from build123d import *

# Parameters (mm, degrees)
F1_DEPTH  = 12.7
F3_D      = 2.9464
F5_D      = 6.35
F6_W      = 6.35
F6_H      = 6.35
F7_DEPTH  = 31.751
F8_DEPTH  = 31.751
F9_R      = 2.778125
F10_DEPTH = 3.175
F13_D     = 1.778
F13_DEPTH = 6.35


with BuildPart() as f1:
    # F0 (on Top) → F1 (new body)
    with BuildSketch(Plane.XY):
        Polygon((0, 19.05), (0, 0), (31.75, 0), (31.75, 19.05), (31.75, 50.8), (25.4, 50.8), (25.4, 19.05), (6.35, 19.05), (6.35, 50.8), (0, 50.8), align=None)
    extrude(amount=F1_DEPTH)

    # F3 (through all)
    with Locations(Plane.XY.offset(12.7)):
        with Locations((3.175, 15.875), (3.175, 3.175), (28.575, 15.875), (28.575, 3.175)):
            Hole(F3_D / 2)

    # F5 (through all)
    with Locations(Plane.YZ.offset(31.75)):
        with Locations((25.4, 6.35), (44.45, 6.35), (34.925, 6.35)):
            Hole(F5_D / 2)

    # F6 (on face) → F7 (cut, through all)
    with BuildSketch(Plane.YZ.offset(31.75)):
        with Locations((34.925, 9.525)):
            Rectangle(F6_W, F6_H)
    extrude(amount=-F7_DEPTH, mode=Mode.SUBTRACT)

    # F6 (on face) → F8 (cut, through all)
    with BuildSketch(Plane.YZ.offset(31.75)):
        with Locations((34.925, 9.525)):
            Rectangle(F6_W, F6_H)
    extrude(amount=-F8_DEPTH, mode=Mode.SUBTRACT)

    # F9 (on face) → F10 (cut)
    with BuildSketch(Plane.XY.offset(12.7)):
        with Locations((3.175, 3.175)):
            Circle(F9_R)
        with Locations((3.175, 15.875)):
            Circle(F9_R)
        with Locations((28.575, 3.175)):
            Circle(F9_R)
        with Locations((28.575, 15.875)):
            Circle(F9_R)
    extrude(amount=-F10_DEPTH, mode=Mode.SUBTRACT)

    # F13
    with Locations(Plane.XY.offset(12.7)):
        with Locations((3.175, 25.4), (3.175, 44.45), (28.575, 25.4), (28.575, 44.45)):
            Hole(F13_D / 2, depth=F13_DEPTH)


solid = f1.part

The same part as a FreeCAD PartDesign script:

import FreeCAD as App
import Part
import Sketcher
Q = App.Units.Quantity


def add_polygon(sketch, points):
    """Adds a closed chain of lines whose ends are joined by coincident constraints."""
    first, n = sketch.GeometryCount, len(points)
    for a, b in zip(points, points[1:] + points[:1]):
        sketch.addGeometry(Part.LineSegment(App.Vector(*a, 0), App.Vector(*b, 0)), False)
    for i in range(n):
        sketch.addConstraint(Sketcher.Constraint("Coincident", first + i, 2, first + (i + 1) % n, 1))

doc = App.newDocument("Part")
body = doc.addObject("PartDesign::Body", "Body")

sketch1 = body.newObject("Sketcher::SketchObject", "Sketch")
sketch1.AttachmentSupport = (doc.getObject("XY_Plane"), [""])
sketch1.MapMode = "FlatFace"
add_polygon(sketch1, [(0, 0), (31.75, 0), (31.75, 50.8), (25.4, 50.8), (25.4, 19.05), (6.35, 19.05), (6.35, 50.8), (0, 50.8)])
sketch1.addConstraint(Sketcher.Constraint("Horizontal", 0))
sketch1.addConstraint(Sketcher.Constraint("Vertical", 1))
sketch1.addConstraint(Sketcher.Constraint("Horizontal", 2))
sketch1.addConstraint(Sketcher.Constraint("Vertical", 3))
sketch1.addConstraint(Sketcher.Constraint("Horizontal", 4))
sketch1.addConstraint(Sketcher.Constraint("Vertical", 5))
sketch1.addConstraint(Sketcher.Constraint("Horizontal", 6))
sketch1.addConstraint(Sketcher.Constraint("Vertical", 7))
sketch1.addConstraint(Sketcher.Constraint("Coincident", 7, 2, -1, 1))
sketch1.addConstraint(Sketcher.Constraint("Horizontal", 2, 2, 5, 2))
sketch1.addConstraint(Sketcher.Constraint("Equal", 2, 6))
sketch1.addConstraint(Sketcher.Constraint("Equal", 0, 3))
sketch1.addConstraint(Sketcher.Constraint("DistanceY", 1, 1, 1, 2, Q("2 in")))
sketch1.addConstraint(Sketcher.Constraint("DistanceX", -1, 1, 2, 2, Q("1 in")))
sketch1.addConstraint(Sketcher.Constraint("DistanceX", 0, 1, 0, 2, Q("1.25 in")))
pad1 = body.newObject("PartDesign::Pad", "Pad")
pad1.Profile = sketch1
pad1.Length = Q("0.5 in")

sketch2 = body.newObject("Sketcher::SketchObject", "Sketch001")
sketch2.AttachmentSupport = (doc.getObject("XY_Plane"), [""])
sketch2.MapMode = "FlatFace"
sketch2.AttachmentOffset = App.Placement(App.Vector(0, 0, 0.5 * 25.4), App.Rotation())
sketch2.addGeometry(Part.Circle(App.Vector(3.175, 15.875, 0), App.Vector(0, 0, 1), 1.4732), False)
sketch2.addGeometry(Part.Circle(App.Vector(3.175, 3.175, 0), App.Vector(0, 0, 1), 1.4732), False)
sketch2.addGeometry(Part.Circle(App.Vector(28.575, 15.875, 0), App.Vector(0, 0, 1), 1.4732), False)
sketch2.addGeometry(Part.Circle(App.Vector(28.575, 3.175, 0), App.Vector(0, 0, 1), 1.4732), False)
sketch2.addConstraint(Sketcher.Constraint("Equal", 0, 1))
sketch2.addConstraint(Sketcher.Constraint("Equal", 1, 2))
sketch2.addConstraint(Sketcher.Constraint("Equal", 2, 3))
sketch2.addConstraint(Sketcher.Constraint("Horizontal", 0, 3, 2, 3))
sketch2.addConstraint(Sketcher.Constraint("Horizontal", 1, 3, 3, 3))
sketch2.addConstraint(Sketcher.Constraint("Vertical", 0, 3, 1, 3))
sketch2.addConstraint(Sketcher.Constraint("Vertical", 2, 3, 3, 3))
sketch2.addConstraint(Sketcher.Constraint("Diameter", 0, Q("0.116 in")))
sketch2.addConstraint(Sketcher.Constraint("DistanceX", 0, 3, 2, 3, Q("1 in")))
sketch2.addConstraint(Sketcher.Constraint("DistanceY", 1, 3, 0, 3, Q("0.5 in")))
sketch2.addConstraint(Sketcher.Constraint("DistanceX", -1, 1, 0, 3, Q("0.125 in")))
sketch2.addConstraint(Sketcher.Constraint("DistanceY", -1, 1, 0, 3, Q("0.625 in")))
doc.recompute()
hole = body.newObject("PartDesign::Hole", "Hole")
hole.Profile = sketch2
hole.ThreadType = "None"
hole.Diameter = Q("0.116 in")
hole.DepthType = "ThroughAll"

sketch3 = body.newObject("Sketcher::SketchObject", "Sketch002")
sketch3.AttachmentSupport = (doc.getObject("YZ_Plane"), [""])
sketch3.MapMode = "FlatFace"
sketch3.AttachmentOffset = App.Placement(App.Vector(0, 0, 1.25 * 25.4), App.Rotation())
sketch3.addGeometry(Part.Circle(App.Vector(25.4, 6.35, 0), App.Vector(0, 0, 1), 3.175), False)
sketch3.addGeometry(Part.Circle(App.Vector(44.45, 6.35, 0), App.Vector(0, 0, 1), 3.175), False)
sketch3.addGeometry(Part.Circle(App.Vector(34.925, 6.35, 0), App.Vector(0, 0, 1), 3.175), False)
sketch3.addConstraint(Sketcher.Constraint("Equal", 0, 1))
sketch3.addConstraint(Sketcher.Constraint("Equal", 1, 2))
sketch3.addConstraint(Sketcher.Constraint("Horizontal", 0, 3, 1, 3))
sketch3.addConstraint(Sketcher.Constraint("Horizontal", 1, 3, 2, 3))
sketch3.addConstraint(Sketcher.Constraint("Diameter", 0, Q("0.25 in")))
sketch3.addConstraint(Sketcher.Constraint("DistanceX", -1, 1, 0, 3, Q("1 in")))
sketch3.addConstraint(Sketcher.Constraint("DistanceY", -1, 1, 0, 3, Q("0.25 in")))
sketch3.addConstraint(Sketcher.Constraint("DistanceX", -1, 1, 1, 3, Q("1.75 in")))
sketch3.addConstraint(Sketcher.Constraint("DistanceX", -1, 1, 2, 3, Q("1.375 in")))
doc.recompute()
hole2 = body.newObject("PartDesign::Hole", "Hole001")
hole2.Profile = sketch3
hole2.ThreadType = "None"
hole2.Diameter = Q("0.25 in")
hole2.DepthType = "ThroughAll"

sketch4 = body.newObject("Sketcher::SketchObject", "Sketch003")
sketch4.AttachmentSupport = (doc.getObject("YZ_Plane"), [""])
sketch4.MapMode = "FlatFace"
sketch4.AttachmentOffset = App.Placement(App.Vector(0, 0, 1.25 * 25.4), App.Rotation())
add_polygon(sketch4, [(31.75, 12.7), (31.75, 6.35), (38.1, 6.35), (38.1, 12.7)])
sketch4.addConstraint(Sketcher.Constraint("Vertical", 0))
sketch4.addConstraint(Sketcher.Constraint("Horizontal", 1))
sketch4.addConstraint(Sketcher.Constraint("Vertical", 2))
sketch4.addConstraint(Sketcher.Constraint("Horizontal", 3))
sketch4.addConstraint(Sketcher.Constraint("Equal", 3, 0))
sketch4.addConstraint(Sketcher.Constraint("DistanceX", 1, 1, 1, 2, Q("0.25 in")))
sketch4.addConstraint(Sketcher.Constraint("DistanceX", -1, 1, 1, 2, Q("1.5 in")))
sketch4.addConstraint(Sketcher.Constraint("DistanceY", -1, 1, 2, 2, Q("0.5 in")))
pocket1 = body.newObject("PartDesign::Pocket", "Pocket")
pocket1.Profile = sketch4
pocket1.Type = "ThroughAll"

sketch5 = body.newObject("Sketcher::SketchObject", "Sketch004")
sketch5.AttachmentSupport = (doc.getObject("YZ_Plane"), [""])
sketch5.MapMode = "FlatFace"
sketch5.AttachmentOffset = App.Placement(App.Vector(0, 0, 1.25 * 25.4), App.Rotation())
add_polygon(sketch5, [(31.75, 12.7), (31.75, 6.35), (38.1, 6.35), (38.1, 12.7)])
sketch5.addConstraint(Sketcher.Constraint("Vertical", 0))
sketch5.addConstraint(Sketcher.Constraint("Horizontal", 1))
sketch5.addConstraint(Sketcher.Constraint("Vertical", 2))
sketch5.addConstraint(Sketcher.Constraint("Horizontal", 3))
sketch5.addConstraint(Sketcher.Constraint("Equal", 3, 0))
sketch5.addConstraint(Sketcher.Constraint("DistanceX", 1, 1, 1, 2, Q("0.25 in")))
sketch5.addConstraint(Sketcher.Constraint("DistanceX", -1, 1, 1, 2, Q("1.5 in")))
sketch5.addConstraint(Sketcher.Constraint("DistanceY", -1, 1, 2, 2, Q("0.5 in")))
pocket2 = body.newObject("PartDesign::Pocket", "Pocket001")
pocket2.Profile = sketch5
pocket2.Type = "ThroughAll"

sketch6 = body.newObject("Sketcher::SketchObject", "Sketch005")
sketch6.AttachmentSupport = (doc.getObject("XY_Plane"), [""])
sketch6.MapMode = "FlatFace"
sketch6.AttachmentOffset = App.Placement(App.Vector(0, 0, 0.5 * 25.4), App.Rotation())
sketch6.addGeometry(Part.Circle(App.Vector(3.175, 3.175, 0), App.Vector(0, 0, 1), 2.778125), False)
sketch6.addGeometry(Part.Circle(App.Vector(3.175, 15.875, 0), App.Vector(0, 0, 1), 2.778125), False)
sketch6.addGeometry(Part.Circle(App.Vector(28.575, 3.175, 0), App.Vector(0, 0, 1), 2.778125), False)
sketch6.addGeometry(Part.Circle(App.Vector(28.575, 15.875, 0), App.Vector(0, 0, 1), 2.778125), False)
sketch6.addConstraint(Sketcher.Constraint("Equal", 0, 1))
sketch6.addConstraint(Sketcher.Constraint("Equal", 1, 2))
sketch6.addConstraint(Sketcher.Constraint("Equal", 2, 3))
sketch6.addConstraint(Sketcher.Constraint("Horizontal", 0, 3, 2, 3))
sketch6.addConstraint(Sketcher.Constraint("Horizontal", 1, 3, 3, 3))
sketch6.addConstraint(Sketcher.Constraint("Vertical", 0, 3, 1, 3))
sketch6.addConstraint(Sketcher.Constraint("Vertical", 2, 3, 3, 3))
sketch6.addConstraint(Sketcher.Constraint("Diameter", 0, Q("0.21875 in")))
sketch6.addConstraint(Sketcher.Constraint("DistanceX", 0, 3, 2, 3, Q("1 in")))
sketch6.addConstraint(Sketcher.Constraint("DistanceY", 0, 3, 1, 3, Q("0.5 in")))
sketch6.addConstraint(Sketcher.Constraint("DistanceX", -1, 1, 0, 3, Q("0.125 in")))
sketch6.addConstraint(Sketcher.Constraint("DistanceY", -1, 1, 0, 3, Q("0.125 in")))
pocket3 = body.newObject("PartDesign::Pocket", "Pocket002")
pocket3.Profile = sketch6
pocket3.Length = Q("0.125 in")

sketch7 = body.newObject("Sketcher::SketchObject", "Sketch006")
sketch7.AttachmentSupport = (doc.getObject("XY_Plane"), [""])
sketch7.MapMode = "FlatFace"
sketch7.AttachmentOffset = App.Placement(App.Vector(0, 0, 0.5 * 25.4), App.Rotation())
sketch7.addGeometry(Part.Circle(App.Vector(3.175, 25.4, 0), App.Vector(0, 0, 1), 0.889), False)
sketch7.addGeometry(Part.Circle(App.Vector(3.175, 44.45, 0), App.Vector(0, 0, 1), 0.889), False)
sketch7.addGeometry(Part.Circle(App.Vector(28.575, 25.4, 0), App.Vector(0, 0, 1), 0.889), False)
sketch7.addGeometry(Part.Circle(App.Vector(28.575, 44.45, 0), App.Vector(0, 0, 1), 0.889), False)
sketch7.addConstraint(Sketcher.Constraint("Equal", 0, 1))
sketch7.addConstraint(Sketcher.Constraint("Equal", 1, 2))
sketch7.addConstraint(Sketcher.Constraint("Equal", 2, 3))
sketch7.addConstraint(Sketcher.Constraint("Horizontal", 0, 3, 2, 3))
sketch7.addConstraint(Sketcher.Constraint("Horizontal", 1, 3, 3, 3))
sketch7.addConstraint(Sketcher.Constraint("Vertical", 0, 3, 1, 3))
sketch7.addConstraint(Sketcher.Constraint("Vertical", 2, 3, 3, 3))
sketch7.addConstraint(Sketcher.Constraint("Diameter", 0, Q("0.07 in")))
sketch7.addConstraint(Sketcher.Constraint("DistanceY", -1, 1, 0, 3, Q("1 in")))
sketch7.addConstraint(Sketcher.Constraint("DistanceX", 0, 3, 2, 3, Q("1 in")))
sketch7.addConstraint(Sketcher.Constraint("DistanceY", -1, 1, 1, 3, Q("1.75 in")))
sketch7.addConstraint(Sketcher.Constraint("DistanceX", -1, 1, 0, 3, Q("0.125 in")))
doc.recompute()
hole3 = body.newObject("PartDesign::Hole", "Hole002")
hole3.Profile = sketch7
hole3.ThreadType = "None"
hole3.Diameter = Q("0.07 in")
hole3.DepthType = "Dimension"
hole3.Depth = Q("0.25 in")
hole3.DrillPoint = "Flat"

doc.recompute()
